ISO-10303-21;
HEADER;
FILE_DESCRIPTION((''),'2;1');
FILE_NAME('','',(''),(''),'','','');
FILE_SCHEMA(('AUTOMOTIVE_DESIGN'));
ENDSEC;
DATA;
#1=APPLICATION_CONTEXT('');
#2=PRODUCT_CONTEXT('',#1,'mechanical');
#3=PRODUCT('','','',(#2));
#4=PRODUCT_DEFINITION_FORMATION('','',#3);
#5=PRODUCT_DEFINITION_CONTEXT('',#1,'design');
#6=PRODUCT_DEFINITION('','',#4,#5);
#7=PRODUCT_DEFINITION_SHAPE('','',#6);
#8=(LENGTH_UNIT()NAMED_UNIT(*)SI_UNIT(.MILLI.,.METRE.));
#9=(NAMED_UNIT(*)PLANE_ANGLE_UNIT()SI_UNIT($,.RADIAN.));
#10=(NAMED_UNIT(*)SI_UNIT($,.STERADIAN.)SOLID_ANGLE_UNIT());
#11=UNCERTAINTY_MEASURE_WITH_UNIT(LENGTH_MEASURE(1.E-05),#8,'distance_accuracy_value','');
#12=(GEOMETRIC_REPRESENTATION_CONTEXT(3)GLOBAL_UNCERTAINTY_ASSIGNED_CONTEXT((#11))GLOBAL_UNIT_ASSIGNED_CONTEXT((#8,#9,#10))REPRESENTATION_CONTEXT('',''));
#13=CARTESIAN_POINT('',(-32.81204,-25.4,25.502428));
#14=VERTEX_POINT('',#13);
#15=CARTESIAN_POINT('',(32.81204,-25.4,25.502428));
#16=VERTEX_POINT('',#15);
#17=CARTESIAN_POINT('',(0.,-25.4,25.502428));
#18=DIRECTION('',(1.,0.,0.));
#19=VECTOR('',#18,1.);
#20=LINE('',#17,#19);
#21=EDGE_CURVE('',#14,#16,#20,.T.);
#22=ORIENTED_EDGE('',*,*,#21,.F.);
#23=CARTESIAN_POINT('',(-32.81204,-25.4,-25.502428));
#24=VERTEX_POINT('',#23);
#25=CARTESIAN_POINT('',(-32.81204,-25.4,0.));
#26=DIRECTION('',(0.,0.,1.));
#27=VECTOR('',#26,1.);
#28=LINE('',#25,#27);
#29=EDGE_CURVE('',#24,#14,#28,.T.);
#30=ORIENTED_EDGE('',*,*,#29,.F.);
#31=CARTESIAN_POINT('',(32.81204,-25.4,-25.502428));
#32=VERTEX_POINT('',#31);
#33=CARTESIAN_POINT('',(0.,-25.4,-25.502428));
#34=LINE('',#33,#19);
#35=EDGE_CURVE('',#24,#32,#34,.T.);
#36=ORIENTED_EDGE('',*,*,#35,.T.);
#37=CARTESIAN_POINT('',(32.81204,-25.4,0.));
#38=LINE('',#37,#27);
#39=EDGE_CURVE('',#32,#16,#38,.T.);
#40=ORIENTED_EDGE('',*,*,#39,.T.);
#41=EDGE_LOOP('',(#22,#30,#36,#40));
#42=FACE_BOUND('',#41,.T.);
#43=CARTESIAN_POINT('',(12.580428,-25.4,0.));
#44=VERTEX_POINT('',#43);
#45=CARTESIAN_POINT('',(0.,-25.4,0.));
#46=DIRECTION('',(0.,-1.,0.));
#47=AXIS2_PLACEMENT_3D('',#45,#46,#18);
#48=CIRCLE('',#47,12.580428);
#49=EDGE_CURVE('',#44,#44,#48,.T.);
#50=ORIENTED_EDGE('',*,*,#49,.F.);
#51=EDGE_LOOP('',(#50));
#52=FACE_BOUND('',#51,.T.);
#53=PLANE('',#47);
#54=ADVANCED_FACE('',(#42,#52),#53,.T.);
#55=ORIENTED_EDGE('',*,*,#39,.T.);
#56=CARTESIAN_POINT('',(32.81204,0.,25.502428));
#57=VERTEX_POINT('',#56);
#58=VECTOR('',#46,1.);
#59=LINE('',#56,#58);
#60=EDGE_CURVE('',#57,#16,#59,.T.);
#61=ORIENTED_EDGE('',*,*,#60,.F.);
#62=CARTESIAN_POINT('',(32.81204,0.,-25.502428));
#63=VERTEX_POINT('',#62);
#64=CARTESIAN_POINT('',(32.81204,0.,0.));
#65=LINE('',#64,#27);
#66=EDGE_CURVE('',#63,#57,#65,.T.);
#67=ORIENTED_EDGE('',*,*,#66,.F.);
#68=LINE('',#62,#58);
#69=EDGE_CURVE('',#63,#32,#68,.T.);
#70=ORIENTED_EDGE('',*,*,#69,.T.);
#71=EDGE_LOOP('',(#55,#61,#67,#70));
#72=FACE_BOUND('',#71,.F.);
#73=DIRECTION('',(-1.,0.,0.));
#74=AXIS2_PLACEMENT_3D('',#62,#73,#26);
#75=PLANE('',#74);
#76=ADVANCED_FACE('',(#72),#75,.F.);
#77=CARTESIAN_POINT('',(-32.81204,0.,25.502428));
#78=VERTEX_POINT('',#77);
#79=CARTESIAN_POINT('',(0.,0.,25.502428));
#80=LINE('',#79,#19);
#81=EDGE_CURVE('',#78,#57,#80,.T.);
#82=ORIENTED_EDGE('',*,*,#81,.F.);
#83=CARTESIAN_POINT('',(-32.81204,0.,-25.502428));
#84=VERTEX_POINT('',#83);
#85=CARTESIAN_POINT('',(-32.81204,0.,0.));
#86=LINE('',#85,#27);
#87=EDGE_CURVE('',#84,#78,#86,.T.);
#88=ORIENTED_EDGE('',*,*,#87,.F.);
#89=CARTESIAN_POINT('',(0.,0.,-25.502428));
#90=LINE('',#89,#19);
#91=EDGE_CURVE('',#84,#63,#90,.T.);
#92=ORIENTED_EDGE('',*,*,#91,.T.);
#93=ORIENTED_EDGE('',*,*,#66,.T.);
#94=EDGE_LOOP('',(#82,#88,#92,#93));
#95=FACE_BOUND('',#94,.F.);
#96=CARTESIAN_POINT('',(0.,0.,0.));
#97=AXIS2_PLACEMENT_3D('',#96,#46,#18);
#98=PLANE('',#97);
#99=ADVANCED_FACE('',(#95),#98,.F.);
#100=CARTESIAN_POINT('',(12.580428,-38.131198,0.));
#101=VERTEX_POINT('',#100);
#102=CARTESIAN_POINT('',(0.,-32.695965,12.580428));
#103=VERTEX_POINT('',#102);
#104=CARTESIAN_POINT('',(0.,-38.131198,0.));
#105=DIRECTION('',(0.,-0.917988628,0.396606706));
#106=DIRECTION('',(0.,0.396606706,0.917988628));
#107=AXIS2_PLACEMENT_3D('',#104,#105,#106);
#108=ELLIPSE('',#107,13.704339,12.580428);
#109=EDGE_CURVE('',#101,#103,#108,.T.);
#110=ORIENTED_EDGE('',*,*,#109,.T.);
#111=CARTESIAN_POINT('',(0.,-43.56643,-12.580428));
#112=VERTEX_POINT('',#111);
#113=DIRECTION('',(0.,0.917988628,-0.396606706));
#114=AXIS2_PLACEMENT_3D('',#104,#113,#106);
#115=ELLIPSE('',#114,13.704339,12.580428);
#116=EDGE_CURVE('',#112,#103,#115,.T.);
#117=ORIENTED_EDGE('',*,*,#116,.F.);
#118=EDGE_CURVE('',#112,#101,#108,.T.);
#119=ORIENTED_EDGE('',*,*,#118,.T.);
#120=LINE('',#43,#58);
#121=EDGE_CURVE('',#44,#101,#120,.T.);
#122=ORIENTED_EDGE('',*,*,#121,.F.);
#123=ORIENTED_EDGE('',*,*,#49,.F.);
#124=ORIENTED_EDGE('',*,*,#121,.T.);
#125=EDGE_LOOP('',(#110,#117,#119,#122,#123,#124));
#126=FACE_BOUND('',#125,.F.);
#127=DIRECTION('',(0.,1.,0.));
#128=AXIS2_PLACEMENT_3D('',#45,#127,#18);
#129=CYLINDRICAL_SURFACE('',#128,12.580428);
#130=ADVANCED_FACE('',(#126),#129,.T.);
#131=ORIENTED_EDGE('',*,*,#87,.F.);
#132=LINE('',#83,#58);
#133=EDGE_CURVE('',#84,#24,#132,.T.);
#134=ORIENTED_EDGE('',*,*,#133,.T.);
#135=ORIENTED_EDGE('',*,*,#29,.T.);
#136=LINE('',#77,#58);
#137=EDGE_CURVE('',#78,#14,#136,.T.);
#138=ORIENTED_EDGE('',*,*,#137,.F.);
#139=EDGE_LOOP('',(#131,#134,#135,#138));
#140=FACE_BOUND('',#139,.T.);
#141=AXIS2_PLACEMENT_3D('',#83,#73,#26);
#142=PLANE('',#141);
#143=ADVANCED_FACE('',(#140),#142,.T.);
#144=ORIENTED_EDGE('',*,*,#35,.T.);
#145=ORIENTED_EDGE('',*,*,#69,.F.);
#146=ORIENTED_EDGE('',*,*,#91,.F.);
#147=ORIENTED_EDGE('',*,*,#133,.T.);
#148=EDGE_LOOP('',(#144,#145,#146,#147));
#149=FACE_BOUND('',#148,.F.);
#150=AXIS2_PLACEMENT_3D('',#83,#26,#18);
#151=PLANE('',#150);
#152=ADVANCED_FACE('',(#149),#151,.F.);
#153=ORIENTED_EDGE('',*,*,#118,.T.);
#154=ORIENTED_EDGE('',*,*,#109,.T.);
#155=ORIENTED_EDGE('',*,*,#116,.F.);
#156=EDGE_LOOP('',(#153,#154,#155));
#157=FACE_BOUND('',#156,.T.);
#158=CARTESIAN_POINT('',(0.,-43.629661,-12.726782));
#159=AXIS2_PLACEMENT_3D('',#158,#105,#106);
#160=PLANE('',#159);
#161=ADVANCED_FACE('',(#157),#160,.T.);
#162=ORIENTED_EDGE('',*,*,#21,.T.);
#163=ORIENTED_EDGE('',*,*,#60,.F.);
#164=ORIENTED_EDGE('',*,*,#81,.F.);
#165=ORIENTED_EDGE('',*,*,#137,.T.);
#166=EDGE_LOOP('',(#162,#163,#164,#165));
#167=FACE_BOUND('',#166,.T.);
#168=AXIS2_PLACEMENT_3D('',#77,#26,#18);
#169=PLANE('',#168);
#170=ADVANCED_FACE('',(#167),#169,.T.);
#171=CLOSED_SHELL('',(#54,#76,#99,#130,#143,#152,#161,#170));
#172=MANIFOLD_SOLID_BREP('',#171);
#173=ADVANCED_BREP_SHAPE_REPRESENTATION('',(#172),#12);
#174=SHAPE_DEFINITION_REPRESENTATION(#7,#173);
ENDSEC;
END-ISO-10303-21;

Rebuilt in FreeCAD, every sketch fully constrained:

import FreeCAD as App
import Part
import Sketcher
Q = App.Units.Quantity

doc = App.newDocument("Part")
body = doc.addObject("PartDesign::Body", "Body")

# Sketch on XZ plane
sketch1 = doc.addObject("Sketcher::SketchObject", "Sketch")
body.addObject(sketch1)
sketch1.AttachmentSupport = (doc.XZ_Plane, [""])
sketch1.MapMode = "FlatFace"
sketch1.addGeometry([
    Part.LineSegment(App.Vector(-33, 26, 0), App.Vector(-33, -26, 0)),
    Part.LineSegment(App.Vector(-33, -26, 0), App.Vector(33, -26, 0)),
    Part.LineSegment(App.Vector(33, -26, 0), App.Vector(33, 26, 0)),
    Part.LineSegment(App.Vector(33, 26, 0), App.Vector(-33, 26, 0)),
], False)
sketch1.addConstraint([
    Sketcher.Constraint("Coincident", 0, 2, 1, 1),
    Sketcher.Constraint("Coincident", 1, 2, 2, 1),
    Sketcher.Constraint("Coincident", 2, 2, 3, 1),
    Sketcher.Constraint("Coincident", 3, 2, 0, 1),
    Sketcher.Constraint("Vertical", 0),
    Sketcher.Constraint("Horizontal", 1),
    Sketcher.Constraint("Vertical", 2),
    Sketcher.Constraint("Horizontal", 3),
    Sketcher.Constraint("Symmetric", 0, 2, 2, 2, -1, 1),
    Sketcher.Constraint("DistanceX", 1, 1, 1, 2, Q("65.624081 mm")),
    Sketcher.Constraint("DistanceY", 0, 2, 0, 1, Q("51.004857 mm")),
])
pad1 = doc.addObject("PartDesign::Pad", "Pad")
body.addObject(pad1)
pad1.Profile = sketch1
pad1.Length = Q("1 in")

# Sketch on XZ plane
sketch2 = doc.addObject("Sketcher::SketchObject", "Sketch001")
body.addObject(sketch2)
sketch2.AttachmentSupport = (doc.XZ_Plane, [""])
sketch2.MapMode = "FlatFace"
sketch2.AttachmentOffset = App.Placement(App.Vector(0, 0, 1 * 25.4), App.Rotation())
sketch2.addGeometry(Part.Circle(App.Vector(0, 0, 0), App.Vector(0, 0, 1), 13), False)
sketch2.addConstraint([
    Sketcher.Constraint("Coincident", 0, 3, -1, 1),
    Sketcher.Constraint("Diameter", 0, Q("25.160855 mm")),
])
pad2 = doc.addObject("PartDesign::Pad", "Pad001")
body.addObject(pad2)
pad2.Profile = sketch2
pad2.Length = Q("1 in")

# Sketch on YZ plane
sketch3 = doc.addObject("Sketcher::SketchObject", "Sketch002")
body.addObject(sketch3)
sketch3.AttachmentSupport = (doc.YZ_Plane, [""])
sketch3.MapMode = "FlatFace"
sketch3.addGeometry([
    Part.LineSegment(App.Vector(-51, -13, 0), App.Vector(-44, -13, 0)),
    Part.LineSegment(App.Vector(-44, -13, 0), App.Vector(-33, 13, 0)),
    Part.LineSegment(App.Vector(-33, 13, 0), App.Vector(-51, 13, 0)),
    Part.LineSegment(App.Vector(-51, 13, 0), App.Vector(-51, -13, 0)),
], False)
sketch3.addConstraint([
    Sketcher.Constraint("Coincident", 0, 2, 1, 1),
    Sketcher.Constraint("Coincident", 1, 2, 2, 1),
    Sketcher.Constraint("Coincident", 2, 2, 3, 1),
    Sketcher.Constraint("Coincident", 3, 2, 0, 1),
    Sketcher.Constraint("Horizontal", 2),
    Sketcher.Constraint("Vertical", 3),
    Sketcher.Constraint("DistanceX", 2, 2, 2, 1, Q("18.705461 mm")),
    Sketcher.Constraint("DistanceY", 3, 2, -1, 1, Q("13.475001 mm")),
    Sketcher.Constraint("Distance", 1, Q("27.983831 mm")),
    Sketcher.Constraint("DistanceY", 3, 2, 3, 1, Q("26.437057 mm")),
    Sketcher.Constraint("DistanceX", 0, 2, -1, 1, Q("43.629661 mm")),
    Sketcher.Constraint("DistanceY", 0, 2, -1, 1, Q("12.726782 mm")),
])
pocket1 = doc.addObject("PartDesign::Pocket", "Pocket")
body.addObject(pocket1)
pocket1.Profile = sketch3
pocket1.Type = "ThroughAll"
pocket1.Midplane = True

doc.recompute()
